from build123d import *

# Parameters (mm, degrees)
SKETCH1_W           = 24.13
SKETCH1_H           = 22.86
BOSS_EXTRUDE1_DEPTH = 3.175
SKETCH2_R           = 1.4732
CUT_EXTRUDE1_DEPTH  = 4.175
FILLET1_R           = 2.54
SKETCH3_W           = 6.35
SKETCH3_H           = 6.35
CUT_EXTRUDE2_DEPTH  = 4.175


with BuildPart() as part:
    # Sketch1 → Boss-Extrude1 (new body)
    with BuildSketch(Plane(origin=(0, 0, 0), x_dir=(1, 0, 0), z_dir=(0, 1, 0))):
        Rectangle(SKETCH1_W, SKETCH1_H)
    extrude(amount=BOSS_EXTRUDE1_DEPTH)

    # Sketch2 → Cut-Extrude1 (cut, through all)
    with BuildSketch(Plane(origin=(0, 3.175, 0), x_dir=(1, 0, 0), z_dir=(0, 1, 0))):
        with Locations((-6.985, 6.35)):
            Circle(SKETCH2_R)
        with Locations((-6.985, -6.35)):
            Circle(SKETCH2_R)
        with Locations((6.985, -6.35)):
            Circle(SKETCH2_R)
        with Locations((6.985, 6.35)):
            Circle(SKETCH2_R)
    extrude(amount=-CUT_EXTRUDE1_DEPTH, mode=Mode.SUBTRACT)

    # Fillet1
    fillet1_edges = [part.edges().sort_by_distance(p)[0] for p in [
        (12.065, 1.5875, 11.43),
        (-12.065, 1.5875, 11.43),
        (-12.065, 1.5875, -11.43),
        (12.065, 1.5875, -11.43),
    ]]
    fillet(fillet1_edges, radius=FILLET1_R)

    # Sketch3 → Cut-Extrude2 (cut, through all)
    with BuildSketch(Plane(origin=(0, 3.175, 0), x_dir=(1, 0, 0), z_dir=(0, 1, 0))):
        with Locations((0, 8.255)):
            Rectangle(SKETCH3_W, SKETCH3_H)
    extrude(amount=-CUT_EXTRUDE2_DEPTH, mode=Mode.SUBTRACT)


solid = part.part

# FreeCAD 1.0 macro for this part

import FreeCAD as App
import Part
import Sketcher
Q = App.Units.Quantity


def edges_at(feature, points):
    """Names of the edges that pass closest to the given points."""
    edges = feature.Shape.Edges
    near = lambda p: min(range(len(edges)), key=lambda i: edges[i].distToShape(Part.Vertex(*p))[0])
    return sorted({f"Edge{near(p) + 1}" for p in points})

doc = App.newDocument("Part")
body = doc.addObject("PartDesign::Body", "Body")

# Sketch on XZ plane
sketch1 = body.newObject("Sketcher::SketchObject", "Sketch")
sketch1.AttachmentSupport = (doc.getObject("XZ_Plane"), [""])
sketch1.MapMode = "FlatFace"
sketch1.addGeometry(Part.LineSegment(App.Vector(-12, -11, 0), App.Vector(-12, 11, 0)), False)
sketch1.addGeometry(Part.LineSegment(App.Vector(-12, 11, 0), App.Vector(12, 11, 0)), False)
sketch1.addGeometry(Part.LineSegment(App.Vector(12, 11, 0), App.Vector(12, -11, 0)), False)
sketch1.addGeometry(Part.LineSegment(App.Vector(12, -11, 0), App.Vector(-12, -11, 0)), False)
sketch1.addConstraint(Sketcher.Constraint("Coincident", 0, 2, 1, 1))
sketch1.addConstraint(Sketcher.Constraint("Coincident", 1, 2, 2, 1))
sketch1.addConstraint(Sketcher.Constraint("Coincident", 2, 2, 3, 1))
sketch1.addConstraint(Sketcher.Constraint("Coincident", 3, 2, 0, 1))
sketch1.addConstraint(Sketcher.Constraint("Vertical", 0))
sketch1.addConstraint(Sketcher.Constraint("Horizontal", 1))
sketch1.addConstraint(Sketcher.Constraint("Vertical", 2))
sketch1.addConstraint(Sketcher.Constraint("Horizontal", 3))
sketch1.addConstraint(Sketcher.Constraint("Symmetric", 0, 2, 2, 2, -1, 1))
sketch1.addConstraint(Sketcher.Constraint("DistanceY", 0, 1, 0, 2, Q("0.9 in")))
sketch1.addConstraint(Sketcher.Constraint("DistanceX", 1, 1, 1, 2, Q("0.95 in")))
pad1 = body.newObject("PartDesign::Pad", "Pad")
pad1.Profile = sketch1
pad1.Length = Q("0.125 in")
pad1.Reversed = True

# Sketch on XZ plane
sketch2 = body.newObject("Sketcher::SketchObject", "Sketch001")
sketch2.AttachmentSupport = (doc.getObject("XZ_Plane"), [""])
sketch2.MapMode = "FlatFace"
sketch2.AttachmentOffset = App.Placement(App.Vector(0, 0, -0.125 * 25.4), App.Rotation())
sketch2.addGeometry(Part.Circle(App.Vector(-7, -6.3, 0), App.Vector(0, 0, 1), 1.5), False)
sketch2.addGeometry(Part.Circle(App.Vector(-7, 6.3, 0), App.Vector(0, 0, 1), 1.5), False)
sketch2.addGeometry(Part.Circle(App.Vector(7, 6.3, 0), App.Vector(0, 0, 1), 1.5), False)
sketch2.addGeometry(Part.Circle(App.Vector(7, -6.3, 0), App.Vector(0, 0, 1), 1.5), False)
sketch2.addConstraint(Sketcher.Constraint("Equal", 0, 1))
sketch2.addConstraint(Sketcher.Constraint("Equal", 1, 2))
sketch2.addConstraint(Sketcher.Constraint("Equal", 2, 3))
sketch2.addConstraint(Sketcher.Constraint("Symmetric", 0, 3, 2, 3, -1, 1))
sketch2.addConstraint(Sketcher.Constraint("Symmetric", 1, 3, 3, 3, -1, 1))
sketch2.addConstraint(Sketcher.Constraint("Symmetric", 1, 3, 2, 3, -2))
sketch2.addConstraint(Sketcher.Constraint("Diameter", 0, Q("0.116 in")))
sketch2.addConstraint(Sketcher.Constraint("DistanceY", 0, 3, 1, 3, Q("0.5 in")))
sketch2.addConstraint(Sketcher.Constraint("DistanceX", 1, 3, 2, 3, Q("0.55 in")))
pocket1 = body.newObject("PartDesign::Pocket", "Pocket")
pocket1.Profile = sketch2
pocket1.Type = "ThroughAll"
pocket1.Reversed = True
doc.recompute()

fillet = body.newObject("PartDesign::Fillet", "Fillet")
fillet.Base = (pocket1, edges_at(pocket1, [
    (12.065, 1.587, 11.43),
    (-12.065, 1.587, 11.43),
    (-12.065, 1.587, -11.43),
    (12.065, 1.587, -11.43),
]))
fillet.Radius = Q("0.1 in")

# Sketch on XZ plane
sketch3 = body.newObject("Sketcher::SketchObject", "Sketch002")
sketch3.AttachmentSupport = (doc.getObject("XZ_Plane"), [""])
sketch3.MapMode = "FlatFace"
sketch3.AttachmentOffset = App.Placement(App.Vector(0, 0, -0.125 * 25.4), App.Rotation())
sketch3.addGeometry(Part.LineSegment(App.Vector(-3, -11, 0), App.Vector(-3, -5, 0)), False)
sketch3.addGeometry(Part.LineSegment(App.Vector(-3, -5, 0), App.Vector(3, -5, 0)), False)
sketch3.addGeometry(Part.LineSegment(App.Vector(3, -5, 0), App.Vector(3, -11, 0)), False)
sketch3.addGeometry(Part.LineSegment(App.Vector(3, -11, 0), App.Vector(-3, -11, 0)), False)
sketch3.addConstraint(Sketcher.Constraint("Coincident", 0, 2, 1, 1))
sketch3.addConstraint(Sketcher.Constraint("Coincident", 1, 2, 2, 1))
sketch3.addConstraint(Sketcher.Constraint("Coincident", 2, 2, 3, 1))
sketch3.addConstraint(Sketcher.Constraint("Coincident", 3, 2, 0, 1))
sketch3.addConstraint(Sketcher.Constraint("Vertical", 0))
sketch3.addConstraint(Sketcher.Constraint("Horizontal", 1))
sketch3.addConstraint(Sketcher.Constraint("Vertical", 2))
sketch3.addConstraint(Sketcher.Constraint("Horizontal", 3))
sketch3.addConstraint(Sketcher.Constraint("Equal", 3, 0))
sketch3.addConstraint(Sketcher.Constraint("DistanceX", 1, 1, 1, 2, Q("0.25 in")))
sketch3.addConstraint(Sketcher.Constraint("DistanceY", 0, 2, -1, 1, Q("0.2 in")))
sketch3.addConstraint(Sketcher.Constraint("DistanceX", 0, 2, -1, 1, Q("0.125 in")))
pocket2 = body.newObject("PartDesign::Pocket", "Pocket001")
pocket2.Profile = sketch3
pocket2.Type = "ThroughAll"
pocket2.Reversed = True

doc.recompute()
